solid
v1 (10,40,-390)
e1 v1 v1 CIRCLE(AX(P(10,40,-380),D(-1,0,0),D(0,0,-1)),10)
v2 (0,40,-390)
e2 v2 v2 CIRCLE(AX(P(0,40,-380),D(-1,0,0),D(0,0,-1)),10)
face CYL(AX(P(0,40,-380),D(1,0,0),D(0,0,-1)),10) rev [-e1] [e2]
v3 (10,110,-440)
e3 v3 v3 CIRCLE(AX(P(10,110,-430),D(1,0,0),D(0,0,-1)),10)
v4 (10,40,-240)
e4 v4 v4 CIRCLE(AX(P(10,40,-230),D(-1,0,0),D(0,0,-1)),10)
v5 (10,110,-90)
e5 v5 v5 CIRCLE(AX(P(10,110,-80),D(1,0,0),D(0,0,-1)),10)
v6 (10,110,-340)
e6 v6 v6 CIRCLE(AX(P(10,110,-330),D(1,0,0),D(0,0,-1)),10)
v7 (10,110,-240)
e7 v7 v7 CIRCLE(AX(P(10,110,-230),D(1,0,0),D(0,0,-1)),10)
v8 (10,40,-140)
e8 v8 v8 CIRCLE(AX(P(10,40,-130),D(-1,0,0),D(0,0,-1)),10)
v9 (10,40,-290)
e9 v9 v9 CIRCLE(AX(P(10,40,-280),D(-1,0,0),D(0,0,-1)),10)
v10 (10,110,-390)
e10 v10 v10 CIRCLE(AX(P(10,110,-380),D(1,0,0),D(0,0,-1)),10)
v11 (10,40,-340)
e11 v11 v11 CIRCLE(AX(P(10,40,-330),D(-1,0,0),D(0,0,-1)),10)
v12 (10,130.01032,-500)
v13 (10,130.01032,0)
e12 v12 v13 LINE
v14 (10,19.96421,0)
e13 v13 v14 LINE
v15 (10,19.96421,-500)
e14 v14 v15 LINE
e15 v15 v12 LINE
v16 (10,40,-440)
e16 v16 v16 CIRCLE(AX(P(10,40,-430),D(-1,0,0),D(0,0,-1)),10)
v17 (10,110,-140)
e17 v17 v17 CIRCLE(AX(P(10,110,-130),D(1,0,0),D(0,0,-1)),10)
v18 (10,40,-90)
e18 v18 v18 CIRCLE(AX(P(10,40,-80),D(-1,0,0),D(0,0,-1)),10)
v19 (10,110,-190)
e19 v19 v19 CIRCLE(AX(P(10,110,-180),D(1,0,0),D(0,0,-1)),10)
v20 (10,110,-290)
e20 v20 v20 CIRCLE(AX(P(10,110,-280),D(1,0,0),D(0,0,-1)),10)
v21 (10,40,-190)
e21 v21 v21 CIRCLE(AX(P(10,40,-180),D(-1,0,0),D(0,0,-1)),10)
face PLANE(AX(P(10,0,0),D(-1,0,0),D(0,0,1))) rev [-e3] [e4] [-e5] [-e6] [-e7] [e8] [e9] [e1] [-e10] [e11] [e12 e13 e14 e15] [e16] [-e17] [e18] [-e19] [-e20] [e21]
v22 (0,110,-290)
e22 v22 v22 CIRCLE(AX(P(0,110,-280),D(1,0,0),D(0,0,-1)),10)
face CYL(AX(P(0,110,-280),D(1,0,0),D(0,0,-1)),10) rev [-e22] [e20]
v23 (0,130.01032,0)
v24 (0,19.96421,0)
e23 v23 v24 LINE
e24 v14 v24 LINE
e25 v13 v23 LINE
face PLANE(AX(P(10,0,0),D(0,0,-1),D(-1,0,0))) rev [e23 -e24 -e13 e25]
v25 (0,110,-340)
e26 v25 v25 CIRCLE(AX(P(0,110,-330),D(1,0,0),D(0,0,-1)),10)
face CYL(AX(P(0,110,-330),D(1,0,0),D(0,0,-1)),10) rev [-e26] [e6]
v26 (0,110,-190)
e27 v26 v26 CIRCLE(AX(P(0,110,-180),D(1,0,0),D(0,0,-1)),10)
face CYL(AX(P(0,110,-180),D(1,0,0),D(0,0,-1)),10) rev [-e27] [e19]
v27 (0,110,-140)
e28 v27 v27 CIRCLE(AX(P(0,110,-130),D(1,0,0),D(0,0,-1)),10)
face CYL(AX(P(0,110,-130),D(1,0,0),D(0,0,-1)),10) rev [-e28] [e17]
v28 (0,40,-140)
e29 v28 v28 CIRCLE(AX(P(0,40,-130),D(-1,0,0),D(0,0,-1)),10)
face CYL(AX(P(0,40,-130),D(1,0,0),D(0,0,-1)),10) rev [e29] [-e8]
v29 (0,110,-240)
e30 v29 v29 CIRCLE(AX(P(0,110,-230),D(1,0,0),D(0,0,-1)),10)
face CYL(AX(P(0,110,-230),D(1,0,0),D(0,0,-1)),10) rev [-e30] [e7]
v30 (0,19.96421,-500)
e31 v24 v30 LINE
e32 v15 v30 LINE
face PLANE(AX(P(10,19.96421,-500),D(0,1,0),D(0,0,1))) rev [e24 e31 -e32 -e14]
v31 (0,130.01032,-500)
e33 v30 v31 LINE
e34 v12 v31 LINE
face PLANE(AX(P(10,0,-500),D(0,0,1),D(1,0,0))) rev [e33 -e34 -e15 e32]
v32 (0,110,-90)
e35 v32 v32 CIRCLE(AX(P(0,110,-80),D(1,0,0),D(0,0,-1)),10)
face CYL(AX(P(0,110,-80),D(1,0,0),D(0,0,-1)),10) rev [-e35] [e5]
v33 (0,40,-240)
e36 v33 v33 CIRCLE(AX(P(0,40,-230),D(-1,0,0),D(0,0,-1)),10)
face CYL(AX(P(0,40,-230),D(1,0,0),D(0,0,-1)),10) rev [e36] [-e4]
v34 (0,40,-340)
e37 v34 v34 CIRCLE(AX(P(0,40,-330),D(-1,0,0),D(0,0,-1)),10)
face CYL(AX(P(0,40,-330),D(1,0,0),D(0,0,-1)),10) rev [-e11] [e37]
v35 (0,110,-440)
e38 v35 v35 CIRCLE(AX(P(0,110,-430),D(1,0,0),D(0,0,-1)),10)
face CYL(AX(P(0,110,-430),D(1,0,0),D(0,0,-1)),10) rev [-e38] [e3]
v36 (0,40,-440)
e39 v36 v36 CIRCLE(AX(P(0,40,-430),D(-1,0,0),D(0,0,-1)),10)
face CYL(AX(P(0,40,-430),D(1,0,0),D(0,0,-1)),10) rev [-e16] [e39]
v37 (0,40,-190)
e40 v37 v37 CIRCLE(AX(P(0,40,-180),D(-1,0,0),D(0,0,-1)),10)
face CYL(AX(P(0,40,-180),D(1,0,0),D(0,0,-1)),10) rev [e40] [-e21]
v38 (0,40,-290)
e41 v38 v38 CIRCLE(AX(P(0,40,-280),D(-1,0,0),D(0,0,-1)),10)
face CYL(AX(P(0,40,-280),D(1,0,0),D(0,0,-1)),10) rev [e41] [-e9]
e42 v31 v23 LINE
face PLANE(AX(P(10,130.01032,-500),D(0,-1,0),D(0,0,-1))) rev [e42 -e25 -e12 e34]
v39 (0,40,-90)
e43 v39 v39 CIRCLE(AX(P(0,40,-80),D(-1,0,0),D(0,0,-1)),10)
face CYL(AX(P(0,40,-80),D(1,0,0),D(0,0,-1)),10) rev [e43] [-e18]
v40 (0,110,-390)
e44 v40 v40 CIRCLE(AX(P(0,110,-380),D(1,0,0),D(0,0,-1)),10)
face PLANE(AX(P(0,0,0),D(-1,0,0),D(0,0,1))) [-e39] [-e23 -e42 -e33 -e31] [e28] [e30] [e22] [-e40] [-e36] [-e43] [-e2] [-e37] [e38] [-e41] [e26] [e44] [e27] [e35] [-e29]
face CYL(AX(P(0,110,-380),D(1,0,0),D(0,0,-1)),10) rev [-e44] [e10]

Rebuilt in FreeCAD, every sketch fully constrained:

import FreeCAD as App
import Part
import Sketcher
Q = App.Units.Quantity

doc = App.newDocument("Part")
body = doc.addObject("PartDesign::Body", "Body")

# Sketch on YZ plane
sketch1 = body.newObject("Sketcher::SketchObject", "Sketch")
sketch1.AttachmentSupport = (doc.getObject("YZ_Plane"), [""])
sketch1.MapMode = "FlatFace"
sketch1.addGeometry([
    Part.LineSegment(App.Vector(150, 0, 0), App.Vector(0, 0, 0)),
    Part.LineSegment(App.Vector(0, 0, 0), App.Vector(0, -500, 0)),
    Part.LineSegment(App.Vector(0, -500, 0), App.Vector(150, -500, 0)),
    Part.LineSegment(App.Vector(150, -500, 0), App.Vector(150, 0, 0)),
], False)
sketch1.addConstraint([
    Sketcher.Constraint("Coincident", 0, 2, 1, 1),
    Sketcher.Constraint("Coincident", 1, 2, 2, 1),
    Sketcher.Constraint("Coincident", 2, 2, 3, 1),
    Sketcher.Constraint("Coincident", 3, 2, 0, 1),
    Sketcher.Constraint("Horizontal", 0),
    Sketcher.Constraint("Vertical", 1),
    Sketcher.Constraint("Horizontal", 2),
    Sketcher.Constraint("Vertical", 3),
    Sketcher.Constraint("Coincident", 0, 2, -1, 1),
    Sketcher.Constraint("DistanceX", 0, 2, 0, 1, Q("150 mm")),
    Sketcher.Constraint("DistanceY", 1, 2, 1, 1, Q("500 mm")),
])
pad1 = body.newObject("PartDesign::Pad", "Pad")
pad1.Profile = sketch1
pad1.Length = 10

# Sketch on YZ plane
sketch2 = body.newObject("Sketcher::SketchObject", "Sketch001")
sketch2.AttachmentSupport = (doc.getObject("YZ_Plane"), [""])
sketch2.MapMode = "FlatFace"
sketch2.AttachmentOffset = App.Placement(App.Vector(0, 0, 10), App.Rotation())
sketch2.addGeometry(Part.Circle(App.Vector(110, -80, 0), App.Vector(0, 0, 1), 10), False)
sketch2.addConstraint([
    Sketcher.Constraint("Diameter", 0, Q("20 mm")),
    Sketcher.Constraint("DistanceX", -1, 1, 0, 3, Q("110 mm")),
    Sketcher.Constraint("DistanceY", 0, 3, -1, 1, Q("80 mm")),
])
pocket1 = body.newObject("PartDesign::Pocket", "Pocket")
pocket1.Profile = sketch2
pocket1.Length = 10
doc.recompute()

linearpattern = body.newObject("PartDesign::LinearPattern", "LinearPattern")
linearpattern.Originals = [pocket1]
linearpattern.Direction = (doc.getObject("Z_Axis"), [""])
linearpattern.Mode = "offset"
linearpattern.Offset = 50
linearpattern.Occurrences = 8
linearpattern.Reversed = True
body.Tip = linearpattern
doc.recompute()

datumplane = body.newObject("PartDesign::Plane", "DatumPlane")
datumplane.AttachmentSupport = (doc.getObject("XZ_Plane"), [""])
datumplane.MapMode = "FlatFace"
datumplane.AttachmentOffset = App.Placement(App.Vector(0, 0, -75), App.Rotation())
mirrored = body.newObject("PartDesign::Mirrored", "Mirrored")
mirrored.Originals = [pocket1]
mirrored.MirrorPlane = (datumplane, [""])
body.Tip = mirrored

# Sketch on YZ plane
sketch3 = body.newObject("Sketcher::SketchObject", "Sketch002")
sketch3.AttachmentSupport = (doc.getObject("YZ_Plane"), [""])
sketch3.MapMode = "FlatFace"
sketch3.AttachmentOffset = App.Placement(App.Vector(0, 0, 10), App.Rotation())
sketch3.addGeometry(Part.Circle(App.Vector(40, -130, 0), App.Vector(0, 0, 1), 10), False)
sketch3.addConstraint([
    Sketcher.Constraint("Diameter", 0, Q("20 mm")),
    Sketcher.Constraint("DistanceX", -1, 1, 0, 3, Q("40 mm")),
    Sketcher.Constraint("DistanceY", 0, 3, -1, 1, Q("130 mm")),
])
pocket2 = body.newObject("PartDesign::Pocket", "Pocket001")
pocket2.Profile = sketch3
pocket2.Length = 10

# Sketch on YZ plane
sketch4 = body.newObject("Sketcher::SketchObject", "Sketch003")
sketch4.AttachmentSupport = (doc.getObject("YZ_Plane"), [""])
sketch4.MapMode = "FlatFace"
sketch4.AttachmentOffset = App.Placement(App.Vector(0, 0, 10), App.Rotation())
sketch4.addGeometry(Part.Circle(App.Vector(40, -180, 0), App.Vector(0, 0, 1), 10), False)
sketch4.addConstraint([
    Sketcher.Constraint("Diameter", 0, Q("20 mm")),
    Sketcher.Constraint("DistanceX", -1, 1, 0, 3, Q("40 mm")),
    Sketcher.Constraint("DistanceY", 0, 3, -1, 1, Q("180 mm")),
])
pocket3 = body.newObject("PartDesign::Pocket", "Pocket002")
pocket3.Profile = sketch4
pocket3.Length = 10

# Sketch on YZ plane
sketch5 = body.newObject("Sketcher::SketchObject", "Sketch004")
sketch5.AttachmentSupport = (doc.getObject("YZ_Plane"), [""])
sketch5.MapMode = "FlatFace"
sketch5.AttachmentOffset = App.Placement(App.Vector(0, 0, 10), App.Rotation())
sketch5.addGeometry(Part.Circle(App.Vector(40, -230, 0), App.Vector(0, 0, 1), 10), False)
sketch5.addConstraint([
    Sketcher.Constraint("Diameter", 0, Q("20 mm")),
    Sketcher.Constraint("DistanceX", -1, 1, 0, 3, Q("40 mm")),
    Sketcher.Constraint("DistanceY", 0, 3, -1, 1, Q("230 mm")),
])
pocket4 = body.newObject("PartDesign::Pocket", "Pocket003")
pocket4.Profile = sketch5
pocket4.Length = 10

# Sketch on YZ plane
sketch6 = body.newObject("Sketcher::SketchObject", "Sketch005")
sketch6.AttachmentSupport = (doc.getObject("YZ_Plane"), [""])
sketch6.MapMode = "FlatFace"
sketch6.AttachmentOffset = App.Placement(App.Vector(0, 0, 10), App.Rotation())
sketch6.addGeometry(Part.Circle(App.Vector(40, -280, 0), App.Vector(0, 0, 1), 10), False)
sketch6.addConstraint([
    Sketcher.Constraint("Diameter", 0, Q("20 mm")),
    Sketcher.Constraint("DistanceX", -1, 1, 0, 3, Q("40 mm")),
    Sketcher.Constraint("DistanceY", 0, 3, -1, 1, Q("280 mm")),
])
pocket5 = body.newObject("PartDesign::Pocket", "Pocket004")
pocket5.Profile = sketch6
pocket5.Length = 10

# Sketch on YZ plane
sketch7 = body.newObject("Sketcher::SketchObject", "Sketch006")
sketch7.AttachmentSupport = (doc.getObject("YZ_Plane"), [""])
sketch7.MapMode = "FlatFace"
sketch7.AttachmentOffset = App.Placement(App.Vector(0, 0, 10), App.Rotation())
sketch7.addGeometry(Part.Circle(App.Vector(40, -330, 0), App.Vector(0, 0, 1), 10), False)
sketch7.addConstraint([
    Sketcher.Constraint("Diameter", 0, Q("20 mm")),
    Sketcher.Constraint("DistanceX", -1, 1, 0, 3, Q("40 mm")),
    Sketcher.Constraint("DistanceY", 0, 3, -1, 1, Q("330 mm")),
])
pocket6 = body.newObject("PartDesign::Pocket", "Pocket005")
pocket6.Profile = sketch7
pocket6.Length = 10

# Sketch on YZ plane
sketch8 = body.newObject("Sketcher::SketchObject", "Sketch007")
sketch8.AttachmentSupport = (doc.getObject("YZ_Plane"), [""])
sketch8.MapMode = "FlatFace"
sketch8.AttachmentOffset = App.Placement(App.Vector(0, 0, 10), App.Rotation())
sketch8.addGeometry(Part.Circle(App.Vector(40, -380, 0), App.Vector(0, 0, 1), 10), False)
sketch8.addConstraint([
    Sketcher.Constraint("Diameter", 0, Q("20 mm")),
    Sketcher.Constraint("DistanceX", -1, 1, 0, 3, Q("40 mm")),
    Sketcher.Constraint("DistanceY", 0, 3, -1, 1, Q("380 mm")),
])
pocket7 = body.newObject("PartDesign::Pocket", "Pocket006")
pocket7.Profile = sketch8
pocket7.Length = 10

# Sketch on YZ plane
sketch9 = body.newObject("Sketcher::SketchObject", "Sketch008")
sketch9.AttachmentSupport = (doc.getObject("YZ_Plane"), [""])
sketch9.MapMode = "FlatFace"
sketch9.AttachmentOffset = App.Placement(App.Vector(0, 0, 10), App.Rotation())
sketch9.addGeometry(Part.Circle(App.Vector(40, -430, 0), App.Vector(0, 0, 1), 10), False)
sketch9.addConstraint([
    Sketcher.Constraint("Diameter", 0, Q("20 mm")),
    Sketcher.Constraint("DistanceX", -1, 1, 0, 3, Q("40 mm")),
    Sketcher.Constraint("DistanceY", 0, 3, -1, 1, Q("430 mm")),
])
pocket8 = body.newObject("PartDesign::Pocket", "Pocket007")
pocket8.Profile = sketch9
pocket8.Length = 10

# Sketch on YZ plane
sketch10 = body.newObject("Sketcher::SketchObject", "Sketch009")
sketch10.AttachmentSupport = (doc.getObject("YZ_Plane"), [""])
sketch10.MapMode = "FlatFace"
sketch10.addGeometry([
    Part.LineSegment(App.Vector(150, -500, 0), App.Vector(130.01032, -500, 0)),  # 0
    Part.LineSegment(App.Vector(130.01032, -500, 0), App.Vector(130.01032, 0, 0)),  # 1
    Part.LineSegment(App.Vector(130.01032, 0, 0), App.Vector(150, 0, 0)),  # 2
    Part.LineSegment(App.Vector(150, 0, 0), App.Vector(150, -500, 0)),  # 3
    Part.LineSegment(App.Vector(19.96421, -500, 0), App.Vector(0, -500, 0)),  # 4
    Part.LineSegment(App.Vector(0, -500, 0), App.Vector(0, 0, 0)),  # 5
    Part.LineSegment(App.Vector(0, 0, 0), App.Vector(19.96421, 0, 0)),  # 6
    Part.LineSegment(App.Vector(19.96421, 0, 0), App.Vector(19.96421, -500, 0)),  # 7
], False)
sketch10.addConstraint([
    Sketcher.Constraint("Coincident", 0, 2, 1, 1),
    Sketcher.Constraint("Coincident", 1, 2, 2, 1),
    Sketcher.Constraint("Coincident", 2, 2, 3, 1),
    Sketcher.Constraint("Coincident", 3, 2, 0, 1),
    Sketcher.Constraint("Coincident", 4, 2, 5, 1),
    Sketcher.Constraint("Coincident", 5, 2, 6, 1),
    Sketcher.Constraint("Coincident", 6, 2, 7, 1),
    Sketcher.Constraint("Coincident", 7, 2, 4, 1),
    Sketcher.Constraint("Horizontal", 0),
    Sketcher.Constraint("Vertical", 1),
    Sketcher.Constraint("Horizontal", 2),
    Sketcher.Constraint("Vertical", 3),
    Sketcher.Constraint("Horizontal", 4),
    Sketcher.Constraint("Vertical", 5),
    Sketcher.Constraint("Horizontal", 6),
    Sketcher.Constraint("Vertical", 7),
    Sketcher.Constraint("Coincident", 5, 2, -1, 1),
    Sketcher.Constraint("PointOnObject", 1, 2, -1),
    Sketcher.Constraint("Horizontal", 3, 2, 4, 2),
    Sketcher.Constraint("DistanceY", 1, 1, 1, 2, Q("500 mm")),
    Sketcher.Constraint("DistanceX", -1, 1, 2, 2, Q("150 mm")),
    Sketcher.Constraint("DistanceX", 0, 2, 0, 1, Q("19.98968 mm")),
    Sketcher.Constraint("DistanceX", 4, 2, 4, 1, Q("19.96421 mm")),
])
pocket9 = body.newObject("PartDesign::Pocket", "Pocket008")
pocket9.Profile = sketch10
pocket9.Length = 10
pocket9.Reversed = True

doc.recompute()
